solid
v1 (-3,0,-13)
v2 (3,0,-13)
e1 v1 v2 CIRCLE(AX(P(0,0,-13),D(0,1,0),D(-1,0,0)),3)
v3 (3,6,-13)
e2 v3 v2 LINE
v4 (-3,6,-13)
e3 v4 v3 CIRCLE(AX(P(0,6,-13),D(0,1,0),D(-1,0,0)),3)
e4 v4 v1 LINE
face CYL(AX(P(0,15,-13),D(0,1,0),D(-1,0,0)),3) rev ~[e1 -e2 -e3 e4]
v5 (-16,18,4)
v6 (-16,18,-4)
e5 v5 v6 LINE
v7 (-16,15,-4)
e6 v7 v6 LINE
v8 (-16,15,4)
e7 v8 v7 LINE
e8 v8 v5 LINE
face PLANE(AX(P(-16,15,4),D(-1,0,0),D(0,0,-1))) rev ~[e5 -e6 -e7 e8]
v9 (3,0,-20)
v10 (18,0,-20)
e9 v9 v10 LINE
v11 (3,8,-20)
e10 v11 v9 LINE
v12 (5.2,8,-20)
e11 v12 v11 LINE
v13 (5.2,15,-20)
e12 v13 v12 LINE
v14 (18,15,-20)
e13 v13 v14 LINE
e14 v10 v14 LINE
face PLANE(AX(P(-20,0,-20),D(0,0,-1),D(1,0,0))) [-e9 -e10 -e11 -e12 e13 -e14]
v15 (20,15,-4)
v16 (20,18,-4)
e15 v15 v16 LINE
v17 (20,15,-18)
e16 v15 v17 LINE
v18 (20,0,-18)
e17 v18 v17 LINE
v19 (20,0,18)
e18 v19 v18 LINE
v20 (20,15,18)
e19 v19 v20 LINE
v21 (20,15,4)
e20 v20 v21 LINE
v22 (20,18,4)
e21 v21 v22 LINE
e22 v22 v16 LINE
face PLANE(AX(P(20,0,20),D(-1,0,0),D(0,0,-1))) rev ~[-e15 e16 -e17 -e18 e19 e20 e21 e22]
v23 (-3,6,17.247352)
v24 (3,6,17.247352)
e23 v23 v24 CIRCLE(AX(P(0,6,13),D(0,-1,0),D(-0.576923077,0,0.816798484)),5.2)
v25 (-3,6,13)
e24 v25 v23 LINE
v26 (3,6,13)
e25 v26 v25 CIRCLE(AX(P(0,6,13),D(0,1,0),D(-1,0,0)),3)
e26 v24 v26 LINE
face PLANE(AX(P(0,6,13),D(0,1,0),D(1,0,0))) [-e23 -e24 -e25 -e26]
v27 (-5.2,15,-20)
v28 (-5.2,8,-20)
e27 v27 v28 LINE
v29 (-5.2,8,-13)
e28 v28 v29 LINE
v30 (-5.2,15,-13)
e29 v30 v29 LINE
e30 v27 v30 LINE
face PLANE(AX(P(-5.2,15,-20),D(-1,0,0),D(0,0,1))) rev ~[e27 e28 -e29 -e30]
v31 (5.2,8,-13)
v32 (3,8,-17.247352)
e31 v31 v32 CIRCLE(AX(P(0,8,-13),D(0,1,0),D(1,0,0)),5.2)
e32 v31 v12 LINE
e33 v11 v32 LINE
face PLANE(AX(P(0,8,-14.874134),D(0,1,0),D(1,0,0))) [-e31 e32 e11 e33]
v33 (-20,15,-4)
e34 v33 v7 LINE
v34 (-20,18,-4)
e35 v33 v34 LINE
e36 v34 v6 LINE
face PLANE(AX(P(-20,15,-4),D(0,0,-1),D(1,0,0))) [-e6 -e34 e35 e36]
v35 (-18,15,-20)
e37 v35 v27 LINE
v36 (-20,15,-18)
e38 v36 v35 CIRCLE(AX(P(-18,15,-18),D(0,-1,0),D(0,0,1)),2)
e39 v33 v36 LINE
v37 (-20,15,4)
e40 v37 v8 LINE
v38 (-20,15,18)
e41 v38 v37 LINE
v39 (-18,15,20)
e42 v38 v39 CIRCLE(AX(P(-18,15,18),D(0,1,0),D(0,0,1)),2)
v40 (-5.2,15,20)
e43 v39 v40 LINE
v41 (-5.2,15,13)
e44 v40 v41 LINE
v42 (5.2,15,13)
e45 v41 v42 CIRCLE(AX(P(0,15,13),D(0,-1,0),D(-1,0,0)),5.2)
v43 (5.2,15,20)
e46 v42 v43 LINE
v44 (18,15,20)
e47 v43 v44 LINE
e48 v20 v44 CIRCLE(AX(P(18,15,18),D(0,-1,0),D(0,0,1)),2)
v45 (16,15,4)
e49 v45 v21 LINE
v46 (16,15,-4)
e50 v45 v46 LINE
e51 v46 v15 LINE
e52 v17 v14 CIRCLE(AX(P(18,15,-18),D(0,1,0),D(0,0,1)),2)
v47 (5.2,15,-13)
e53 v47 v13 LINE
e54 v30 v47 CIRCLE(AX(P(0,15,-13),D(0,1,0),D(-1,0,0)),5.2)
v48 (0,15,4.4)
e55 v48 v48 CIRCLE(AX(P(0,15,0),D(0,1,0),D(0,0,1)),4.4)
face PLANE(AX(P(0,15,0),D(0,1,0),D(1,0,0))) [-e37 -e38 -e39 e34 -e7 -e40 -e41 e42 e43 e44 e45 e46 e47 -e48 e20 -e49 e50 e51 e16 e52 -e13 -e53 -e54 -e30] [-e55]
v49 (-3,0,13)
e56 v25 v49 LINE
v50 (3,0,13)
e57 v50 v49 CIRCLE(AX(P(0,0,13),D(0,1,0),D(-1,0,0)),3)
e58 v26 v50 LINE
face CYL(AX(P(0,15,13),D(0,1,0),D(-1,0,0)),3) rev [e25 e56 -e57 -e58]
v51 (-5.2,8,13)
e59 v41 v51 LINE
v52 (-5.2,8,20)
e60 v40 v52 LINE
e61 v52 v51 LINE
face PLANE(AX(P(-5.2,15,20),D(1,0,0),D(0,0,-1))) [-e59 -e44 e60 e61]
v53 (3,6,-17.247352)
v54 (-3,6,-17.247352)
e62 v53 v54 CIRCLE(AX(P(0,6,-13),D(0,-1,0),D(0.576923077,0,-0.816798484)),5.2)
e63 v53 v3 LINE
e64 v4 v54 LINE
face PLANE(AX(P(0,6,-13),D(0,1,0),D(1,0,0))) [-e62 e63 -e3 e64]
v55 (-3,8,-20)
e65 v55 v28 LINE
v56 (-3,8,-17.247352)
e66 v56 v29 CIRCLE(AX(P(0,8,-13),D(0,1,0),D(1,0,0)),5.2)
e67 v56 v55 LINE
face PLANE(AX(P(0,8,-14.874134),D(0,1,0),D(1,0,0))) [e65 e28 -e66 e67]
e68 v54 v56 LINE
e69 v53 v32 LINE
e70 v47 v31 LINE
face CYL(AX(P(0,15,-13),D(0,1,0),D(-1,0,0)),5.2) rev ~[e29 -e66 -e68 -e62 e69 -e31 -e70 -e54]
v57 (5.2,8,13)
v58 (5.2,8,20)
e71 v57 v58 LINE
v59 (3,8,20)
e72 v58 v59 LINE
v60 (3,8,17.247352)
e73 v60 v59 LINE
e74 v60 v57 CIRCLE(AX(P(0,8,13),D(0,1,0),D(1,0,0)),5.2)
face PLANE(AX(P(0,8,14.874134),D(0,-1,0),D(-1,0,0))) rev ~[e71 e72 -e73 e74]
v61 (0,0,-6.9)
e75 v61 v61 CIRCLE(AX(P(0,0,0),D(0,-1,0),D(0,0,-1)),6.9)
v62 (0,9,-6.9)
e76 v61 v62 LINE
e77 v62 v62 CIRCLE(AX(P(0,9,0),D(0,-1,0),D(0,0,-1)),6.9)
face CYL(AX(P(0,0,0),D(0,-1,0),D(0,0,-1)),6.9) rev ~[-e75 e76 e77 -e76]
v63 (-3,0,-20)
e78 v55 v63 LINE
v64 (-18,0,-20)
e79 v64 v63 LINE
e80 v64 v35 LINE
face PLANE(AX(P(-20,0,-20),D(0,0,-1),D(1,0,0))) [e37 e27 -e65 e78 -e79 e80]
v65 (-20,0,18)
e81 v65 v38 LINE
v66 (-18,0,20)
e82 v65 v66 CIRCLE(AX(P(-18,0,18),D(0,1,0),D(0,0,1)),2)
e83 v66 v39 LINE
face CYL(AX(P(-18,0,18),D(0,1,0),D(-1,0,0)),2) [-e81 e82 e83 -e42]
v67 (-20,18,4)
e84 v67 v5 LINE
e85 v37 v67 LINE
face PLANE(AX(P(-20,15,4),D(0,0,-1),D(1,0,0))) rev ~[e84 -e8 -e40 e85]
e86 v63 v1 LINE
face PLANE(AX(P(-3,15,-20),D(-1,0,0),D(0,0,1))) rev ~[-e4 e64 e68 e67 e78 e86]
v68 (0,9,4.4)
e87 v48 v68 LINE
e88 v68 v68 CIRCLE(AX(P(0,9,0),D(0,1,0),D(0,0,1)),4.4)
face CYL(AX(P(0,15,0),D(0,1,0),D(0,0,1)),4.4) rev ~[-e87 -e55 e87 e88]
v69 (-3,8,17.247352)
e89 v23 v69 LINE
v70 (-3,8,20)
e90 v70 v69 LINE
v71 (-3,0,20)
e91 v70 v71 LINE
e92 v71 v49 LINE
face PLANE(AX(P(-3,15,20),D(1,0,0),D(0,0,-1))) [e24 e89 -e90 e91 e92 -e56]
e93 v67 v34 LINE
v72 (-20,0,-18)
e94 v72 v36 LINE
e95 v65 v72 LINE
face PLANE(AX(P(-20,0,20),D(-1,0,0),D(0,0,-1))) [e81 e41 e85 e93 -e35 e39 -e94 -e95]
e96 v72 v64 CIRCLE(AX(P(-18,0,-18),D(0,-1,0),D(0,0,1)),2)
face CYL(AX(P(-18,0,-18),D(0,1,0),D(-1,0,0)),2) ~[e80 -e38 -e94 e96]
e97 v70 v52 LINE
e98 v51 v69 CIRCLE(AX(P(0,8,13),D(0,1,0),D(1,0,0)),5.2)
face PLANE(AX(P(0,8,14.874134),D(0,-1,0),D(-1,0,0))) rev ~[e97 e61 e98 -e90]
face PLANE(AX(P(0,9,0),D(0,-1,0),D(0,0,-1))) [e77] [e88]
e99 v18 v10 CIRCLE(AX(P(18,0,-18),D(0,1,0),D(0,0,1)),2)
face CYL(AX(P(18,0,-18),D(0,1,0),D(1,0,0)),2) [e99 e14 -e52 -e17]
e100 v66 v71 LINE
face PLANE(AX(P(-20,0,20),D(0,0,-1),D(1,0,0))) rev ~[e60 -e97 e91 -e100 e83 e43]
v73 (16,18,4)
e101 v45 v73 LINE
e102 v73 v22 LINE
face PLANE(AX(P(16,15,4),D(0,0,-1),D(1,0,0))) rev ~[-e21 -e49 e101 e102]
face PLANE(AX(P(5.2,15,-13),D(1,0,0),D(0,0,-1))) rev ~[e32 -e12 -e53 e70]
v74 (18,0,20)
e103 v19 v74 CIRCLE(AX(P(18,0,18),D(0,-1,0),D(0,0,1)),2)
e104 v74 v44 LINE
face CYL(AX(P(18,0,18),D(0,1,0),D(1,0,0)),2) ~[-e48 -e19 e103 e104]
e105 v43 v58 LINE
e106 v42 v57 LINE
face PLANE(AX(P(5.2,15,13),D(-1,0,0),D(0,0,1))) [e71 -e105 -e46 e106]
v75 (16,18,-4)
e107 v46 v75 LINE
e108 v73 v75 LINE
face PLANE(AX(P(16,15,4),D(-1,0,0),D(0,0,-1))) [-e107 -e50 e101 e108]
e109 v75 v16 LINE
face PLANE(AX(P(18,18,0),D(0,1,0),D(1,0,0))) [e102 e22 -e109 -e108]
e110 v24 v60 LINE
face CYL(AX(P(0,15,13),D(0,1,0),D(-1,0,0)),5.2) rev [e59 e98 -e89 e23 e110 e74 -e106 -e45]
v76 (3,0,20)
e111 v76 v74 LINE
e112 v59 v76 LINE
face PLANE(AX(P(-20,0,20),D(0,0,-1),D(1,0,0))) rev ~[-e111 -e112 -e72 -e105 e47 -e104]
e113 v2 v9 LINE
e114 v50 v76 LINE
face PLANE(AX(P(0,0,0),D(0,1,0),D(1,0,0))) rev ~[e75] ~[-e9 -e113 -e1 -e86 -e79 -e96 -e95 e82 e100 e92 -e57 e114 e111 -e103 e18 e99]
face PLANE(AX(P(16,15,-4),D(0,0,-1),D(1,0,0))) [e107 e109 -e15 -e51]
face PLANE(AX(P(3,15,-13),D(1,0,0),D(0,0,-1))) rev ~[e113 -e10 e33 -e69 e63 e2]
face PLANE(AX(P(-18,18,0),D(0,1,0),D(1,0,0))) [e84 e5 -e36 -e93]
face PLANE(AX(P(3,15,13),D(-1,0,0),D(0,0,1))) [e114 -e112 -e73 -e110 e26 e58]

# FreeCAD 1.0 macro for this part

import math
import FreeCAD as App
import Part
import Sketcher
Q = App.Units.Quantity


def edges_at(feature, points):
    """Names of the edges that pass closest to the given points."""
    edges = feature.Shape.Edges
    near = lambda p: min(range(len(edges)), key=lambda i: edges[i].distToShape(Part.Vertex(*p))[0])
    return sorted({f"Edge{near(p) + 1}" for p in points})


def add_polygon(sketch, points):
    """Adds a closed chain of lines whose ends are joined by coincident constraints."""
    first, n = sketch.GeometryCount, len(points)
    for a, b in zip(points, points[1:] + points[:1]):
        sketch.addGeometry(Part.LineSegment(App.Vector(*a, 0), App.Vector(*b, 0)), False)
    for i in range(n):
        sketch.addConstraint(Sketcher.Constraint("Coincident", first + i, 2, first + (i + 1) % n, 1))

doc = App.newDocument("Part")
body = doc.addObject("PartDesign::Body", "Body")

# Sketch on XZ plane
sketch1 = body.newObject("Sketcher::SketchObject", "Sketch")
sketch1.AttachmentSupport = (doc.getObject("XZ_Plane"), [""])
sketch1.MapMode = "FlatFace"
add_polygon(sketch1, [(-20, -20), (-20, 20), (20, 20), (20, -20)])  # lines 0-3
sketch1.addConstraint(Sketcher.Constraint("Vertical", 0))
sketch1.addConstraint(Sketcher.Constraint("Horizontal", 1))
sketch1.addConstraint(Sketcher.Constraint("Vertical", 2))
sketch1.addConstraint(Sketcher.Constraint("Horizontal", 3))
sketch1.addConstraint(Sketcher.Constraint("Symmetric", 0, 2, 2, 2, -1, 1))
sketch1.addConstraint(Sketcher.Constraint("Equal", 3, 0))
sketch1.addConstraint(Sketcher.Constraint("DistanceX", 1, 1, 1, 2, Q("40 mm")))
pad1 = body.newObject("PartDesign::Pad", "Pad")
pad1.Profile = sketch1
pad1.Length = 15
pad1.Reversed = True

# Sketch on XZ plane
sketch2 = body.newObject("Sketcher::SketchObject", "Sketch001")
sketch2.AttachmentSupport = (doc.getObject("XZ_Plane"), [""])
sketch2.MapMode = "FlatFace"
sketch2.AttachmentOffset = App.Placement(App.Vector(0, 0, -15), App.Rotation())
add_polygon(sketch2, [(-20, -4), (-20, 4), (-16, 4), (-16, -4)])  # lines 0-3
add_polygon(sketch2, [(16, -4), (16, 4), (20, 4), (20, -4)])  # lines 4-7
sketch2.addConstraint(Sketcher.Constraint("Vertical", 0))
sketch2.addConstraint(Sketcher.Constraint("Horizontal", 1))
sketch2.addConstraint(Sketcher.Constraint("Vertical", 2))
sketch2.addConstraint(Sketcher.Constraint("Horizontal", 3))
sketch2.addConstraint(Sketcher.Constraint("Vertical", 4))
sketch2.addConstraint(Sketcher.Constraint("Horizontal", 5))
sketch2.addConstraint(Sketcher.Constraint("Vertical", 6))
sketch2.addConstraint(Sketcher.Constraint("Horizontal", 7))
sketch2.addConstraint(Sketcher.Constraint("Symmetric", 2, 2, 4, 2, -1, 1))
sketch2.addConstraint(Sketcher.Constraint("Symmetric", 0, 2, 6, 2, -1, 1))
sketch2.addConstraint(Sketcher.Constraint("Horizontal", 1, 2, 4, 2))
sketch2.addConstraint(Sketcher.Constraint("DistanceX", 1, 1, 1, 2, Q("4 mm")))
sketch2.addConstraint(Sketcher.Constraint("DistanceY", 0, 1, 0, 2, Q("8 mm")))
sketch2.addConstraint(Sketcher.Constraint("DistanceX", 0, 2, -1, 1, Q("20 mm")))
pad2 = body.newObject("PartDesign::Pad", "Pad001")
pad2.Profile = sketch2
pad2.Length = 3
pad2.Reversed = True

# Sketch on XZ plane
sketch3 = body.newObject("Sketcher::SketchObject", "Sketch002")
sketch3.AttachmentSupport = (doc.getObject("XZ_Plane"), [""])
sketch3.MapMode = "FlatFace"
sketch3.AttachmentOffset = App.Placement(App.Vector(0, 0, -15), App.Rotation())
sketch3.addGeometry(Part.Circle(App.Vector(0, 0, 0), App.Vector(0, 0, 1), 4.4), False)
sketch3.addGeometry(Part.LineSegment(App.Vector(-3, 13, 0), App.Vector(-3, 20, 0)), False)
sketch3.addGeometry(Part.LineSegment(App.Vector(-3, 20, 0), App.Vector(3, 20, 0)), False)
sketch3.addGeometry(Part.LineSegment(App.Vector(3, 20, 0), App.Vector(3, 13, 0)), False)
sketch3.addGeometry(Part.ArcOfCircle(Part.Circle(App.Vector(0, 13, 0), App.Vector(0, 0, 1), 3), math.radians(180), math.radians(360)), False)
sketch3.addGeometry(Part.LineSegment(App.Vector(3, -13, 0), App.Vector(3, -20, 0)), False)
sketch3.addGeometry(Part.LineSegment(App.Vector(3, -20, 0), App.Vector(-3, -20, 0)), False)
sketch3.addGeometry(Part.LineSegment(App.Vector(-3, -20, 0), App.Vector(-3, -13, 0)), False)
sketch3.addGeometry(Part.ArcOfCircle(Part.Circle(App.Vector(0, -13, 0), App.Vector(0, 0, 1), 3), math.radians(0), math.radians(180)), False)
sketch3.addConstraint(Sketcher.Constraint("Coincident", 1, 2, 2, 1))
sketch3.addConstraint(Sketcher.Constraint("Coincident", 2, 2, 3, 1))
sketch3.addConstraint(Sketcher.Constraint("Tangent", 3, 2, 4, 2))
sketch3.addConstraint(Sketcher.Constraint("Tangent", 4, 1, 1, 1))
sketch3.addConstraint(Sketcher.Constraint("Coincident", 5, 2, 6, 1))
sketch3.addConstraint(Sketcher.Constraint("Coincident", 6, 2, 7, 1))
sketch3.addConstraint(Sketcher.Constraint("Tangent", 7, 2, 8, 2))
sketch3.addConstraint(Sketcher.Constraint("Tangent", 8, 1, 5, 1))
sketch3.addConstraint(Sketcher.Constraint("Vertical", 1))
sketch3.addConstraint(Sketcher.Constraint("Horizontal", 2))
sketch3.addConstraint(Sketcher.Constraint("Vertical", 3))
sketch3.addConstraint(Sketcher.Constraint("Vertical", 5))
sketch3.addConstraint(Sketcher.Constraint("Horizontal", 6))
sketch3.addConstraint(Sketcher.Constraint("Vertical", 7))
sketch3.addConstraint(Sketcher.Constraint("Coincident", 0, 3, -1, 1))
sketch3.addConstraint(Sketcher.Constraint("Equal", 4, 8))
sketch3.addConstraint(Sketcher.Constraint("Symmetric", 4, 3, 8, 3, -1, 1))
sketch3.addConstraint(Sketcher.Constraint("Symmetric", 2, 2, 5, 2, -1))
sketch3.addConstraint(Sketcher.Constraint("Radius", 4, Q("3 mm")))
sketch3.addConstraint(Sketcher.Constraint("Diameter", 0, Q("8.8 mm")))
sketch3.addConstraint(Sketcher.Constraint("DistanceY", 1, 1, 1, 2, Q("7 mm")))
sketch3.addConstraint(Sketcher.Constraint("DistanceY", -1, 1, 4, 3, Q("13 mm")))
pocket1 = body.newObject("PartDesign::Pocket", "Pocket")
pocket1.Profile = sketch3
pocket1.Type = "ThroughAll"
pocket1.Reversed = True

# Sketch on XZ plane
sketch4 = body.newObject("Sketcher::SketchObject", "Sketch003")
sketch4.AttachmentSupport = (doc.getObject("XZ_Plane"), [""])
sketch4.MapMode = "FlatFace"
sketch4.addGeometry(Part.Circle(App.Vector(0, 0, 0), App.Vector(0, 0, 1), 7), False)
sketch4.addConstraint(Sketcher.Constraint("Coincident", 0, 3, -1, 1))
sketch4.addConstraint(Sketcher.Constraint("Diameter", 0, Q("13.8 mm")))
pocket2 = body.newObject("PartDesign::Pocket", "Pocket001")
pocket2.Profile = sketch4
pocket2.Length = 9

# Sketch on XZ plane
sketch5 = body.newObject("Sketcher::SketchObject", "Sketch004")
sketch5.AttachmentSupport = (doc.getObject("XZ_Plane"), [""])
sketch5.MapMode = "FlatFace"
sketch5.AttachmentOffset = App.Placement(App.Vector(0, 0, -15), App.Rotation())
sketch5.addGeometry(Part.LineSegment(App.Vector(-5, 13, 0), App.Vector(-5, 20, 0)), False)
sketch5.addGeometry(Part.LineSegment(App.Vector(-5, 20, 0), App.Vector(5, 20, 0)), False)
sketch5.addGeometry(Part.LineSegment(App.Vector(5, 20, 0), App.Vector(5, 13, 0)), False)
sketch5.addGeometry(Part.ArcOfCircle(Part.Circle(App.Vector(0, 13, 0), App.Vector(0, 0, 1), 5), math.radians(180), math.radians(360)), False)
sketch5.addGeometry(Part.LineSegment(App.Vector(5, -13, 0), App.Vector(5, -20, 0)), False)
sketch5.addGeometry(Part.LineSegment(App.Vector(5, -20, 0), App.Vector(-5, -20, 0)), False)
sketch5.addGeometry(Part.LineSegment(App.Vector(-5, -20, 0), App.Vector(-5, -13, 0)), False)
sketch5.addGeometry(Part.ArcOfCircle(Part.Circle(App.Vector(0, -13, 0), App.Vector(0, 0, 1), 5), math.radians(0), math.radians(180)), False)
sketch5.addConstraint(Sketcher.Constraint("Coincident", 0, 2, 1, 1))
sketch5.addConstraint(Sketcher.Constraint("Coincident", 1, 2, 2, 1))
sketch5.addConstraint(Sketcher.Constraint("Tangent", 2, 2, 3, 2))
sketch5.addConstraint(Sketcher.Constraint("Tangent", 3, 1, 0, 1))
sketch5.addConstraint(Sketcher.Constraint("Coincident", 4, 2, 5, 1))
sketch5.addConstraint(Sketcher.Constraint("Coincident", 5, 2, 6, 1))
sketch5.addConstraint(Sketcher.Constraint("Tangent", 6, 2, 7, 2))
sketch5.addConstraint(Sketcher.Constraint("Tangent", 7, 1, 4, 1))
sketch5.addConstraint(Sketcher.Constraint("Vertical", 0))
sketch5.addConstraint(Sketcher.Constraint("Horizontal", 1))
sketch5.addConstraint(Sketcher.Constraint("Vertical", 2))
sketch5.addConstraint(Sketcher.Constraint("Vertical", 4))
sketch5.addConstraint(Sketcher.Constraint("Horizontal", 5))
sketch5.addConstraint(Sketcher.Constraint("Vertical", 6))
sketch5.addConstraint(Sketcher.Constraint("Equal", 3, 7))
sketch5.addConstraint(Sketcher.Constraint("Symmetric", 3, 3, 7, 3, -1, 1))
sketch5.addConstraint(Sketcher.Constraint("Symmetric", 1, 2, 4, 2, -1))
sketch5.addConstraint(Sketcher.Constraint("Radius", 3, Q("5.2 mm")))
sketch5.addConstraint(Sketcher.Constraint("DistanceY", 0, 1, 0, 2, Q("7 mm")))
sketch5.addConstraint(Sketcher.Constraint("DistanceY", -1, 1, 3, 3, Q("13 mm")))
pocket3 = body.newObject("PartDesign::Pocket", "Pocket002")
pocket3.Profile = sketch5
pocket3.Length = 7
pocket3.Reversed = True

# Sketch on XZ plane
sketch6 = body.newObject("Sketcher::SketchObject", "Sketch005")
sketch6.AttachmentSupport = (doc.getObject("XZ_Plane"), [""])
sketch6.MapMode = "FlatFace"
sketch6.AttachmentOffset = App.Placement(App.Vector(0, 0, -8), App.Rotation())
sketch6.addGeometry(Part.Circle(App.Vector(0, 13, 0), App.Vector(0, 0, 1), 5), False)
sketch6.addGeometry(Part.Circle(App.Vector(0, -13, 0), App.Vector(0, 0, 1), 5), False)
sketch6.addConstraint(Sketcher.Constraint("Equal", 0, 1))
sketch6.addConstraint(Sketcher.Constraint("Symmetric", 0, 3, 1, 3, -1, 1))
sketch6.addConstraint(Sketcher.Constraint("PointOnObject", 0, 3, -2))
sketch6.addConstraint(Sketcher.Constraint("Diameter", 0, Q("10.4 mm")))
sketch6.addConstraint(Sketcher.Constraint("DistanceY", -1, 1, 0, 3, Q("13 mm")))
pocket4 = body.newObject("PartDesign::Pocket", "Pocket003")
pocket4.Profile = sketch6
pocket4.Length = 2
pocket4.Reversed = True
doc.recompute()

fillet = body.newObject("PartDesign::Fillet", "Fillet")
fillet.Base = (pocket4, edges_at(pocket4, [
    (-20, 7.5, -20),
    (20, 7.5, -20),
    (20, 7.5, 20),
    (-20, 7.5, 20),
]))
fillet.Radius = 2

doc.recompute()
